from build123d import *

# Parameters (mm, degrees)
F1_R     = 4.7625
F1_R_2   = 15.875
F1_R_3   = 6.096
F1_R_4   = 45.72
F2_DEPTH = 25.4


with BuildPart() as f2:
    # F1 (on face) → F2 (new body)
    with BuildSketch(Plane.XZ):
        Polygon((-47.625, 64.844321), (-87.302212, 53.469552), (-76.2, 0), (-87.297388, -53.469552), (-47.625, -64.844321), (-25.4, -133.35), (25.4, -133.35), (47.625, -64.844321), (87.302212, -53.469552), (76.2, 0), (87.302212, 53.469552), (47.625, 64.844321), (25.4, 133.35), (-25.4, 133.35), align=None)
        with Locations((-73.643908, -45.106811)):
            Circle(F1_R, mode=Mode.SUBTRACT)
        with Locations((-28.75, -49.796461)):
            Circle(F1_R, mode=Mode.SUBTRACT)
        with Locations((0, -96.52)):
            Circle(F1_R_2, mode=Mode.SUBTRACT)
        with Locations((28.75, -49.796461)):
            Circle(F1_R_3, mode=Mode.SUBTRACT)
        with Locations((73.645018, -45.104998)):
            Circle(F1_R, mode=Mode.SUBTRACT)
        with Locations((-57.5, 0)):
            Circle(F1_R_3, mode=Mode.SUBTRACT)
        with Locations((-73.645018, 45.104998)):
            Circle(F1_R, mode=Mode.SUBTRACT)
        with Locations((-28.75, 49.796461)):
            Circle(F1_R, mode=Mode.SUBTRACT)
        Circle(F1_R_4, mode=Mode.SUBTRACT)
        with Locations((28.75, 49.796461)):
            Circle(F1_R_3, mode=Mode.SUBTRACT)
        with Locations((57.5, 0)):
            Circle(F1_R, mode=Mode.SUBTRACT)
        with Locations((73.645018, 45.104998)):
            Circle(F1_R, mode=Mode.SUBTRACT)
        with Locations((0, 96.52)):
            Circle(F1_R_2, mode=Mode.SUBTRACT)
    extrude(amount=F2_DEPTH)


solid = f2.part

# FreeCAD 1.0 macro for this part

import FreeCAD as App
import Part
import Sketcher
Q = App.Units.Quantity


def add_polygon(sketch, points):
    """Adds a closed chain of lines whose ends are joined by coincident constraints."""
    first, n = sketch.GeometryCount, len(points)
    for a, b in zip(points, points[1:] + points[:1]):
        sketch.addGeometry(Part.LineSegment(App.Vector(*a, 0), App.Vector(*b, 0)), False)
    for i in range(n):
        sketch.addConstraint(Sketcher.Constraint("Coincident", first + i, 2, first + (i + 1) % n, 1))

doc = App.newDocument("Part")
body = doc.addObject("PartDesign::Body", "Body")

sketch1 = body.newObject("Sketcher::SketchObject", "Sketch")
sketch1.AttachmentSupport = (doc.getObject("XZ_Plane"), [""])
sketch1.MapMode = "FlatFace"
add_polygon(sketch1, [(-47.6, 64.8), (-87.3, 53.5), (-76.2, 0), (-87.3, -53.5), (-47.6, -64.8), (-25.4, -133.3), (25.4, -133.3), (47.6, -64.8), (87.3, -53.5), (76.2, 0), (87.3, 53.5), (47.6, 64.8), (25.4, 133.3), (-25.4, 133.3)])
sketch1.addGeometry(Part.Circle(App.Vector(-73.6, -45.1, 0), App.Vector(0, 0, 1), 4.8), False)
sketch1.addGeometry(Part.Circle(App.Vector(-57.5, 0, 0), App.Vector(0, 0, 1), 6.1), False)
sketch1.addGeometry(Part.Circle(App.Vector(-28.8, -49.8, 0), App.Vector(0, 0, 1), 4.8), False)
sketch1.addGeometry(Part.Circle(App.Vector(0, 0, 0), App.Vector(0, 0, 1), 45.7), False)
sketch1.addGeometry(Part.Circle(App.Vector(0, -96.5, 0), App.Vector(0, 0, 1), 15.9), False)
sketch1.addGeometry(Part.Circle(App.Vector(28.8, -49.8, 0), App.Vector(0, 0, 1), 6.1), False)
sketch1.addGeometry(Part.Circle(App.Vector(73.6, -45.1, 0), App.Vector(0, 0, 1), 4.8), False)
sketch1.addGeometry(Part.Circle(App.Vector(57.5, 0, 0), App.Vector(0, 0, 1), 4.8), False)
sketch1.addGeometry(Part.Circle(App.Vector(-73.6, 45.1, 0), App.Vector(0, 0, 1), 4.8), False)
sketch1.addGeometry(Part.Circle(App.Vector(-28.8, 49.8, 0), App.Vector(0, 0, 1), 4.8), False)
sketch1.addGeometry(Part.Circle(App.Vector(28.8, 49.8, 0), App.Vector(0, 0, 1), 6.1), False)
sketch1.addGeometry(Part.Circle(App.Vector(73.6, 45.1, 0), App.Vector(0, 0, 1), 4.8), False)
sketch1.addGeometry(Part.Circle(App.Vector(0, 96.5, 0), App.Vector(0, 0, 1), 15.9), False)
sketch1.addConstraint([
    Sketcher.Constraint("Horizontal", 5),
    Sketcher.Constraint("Horizontal", 12),
    Sketcher.Constraint("Coincident", 17, 3, -1, 1),
    Sketcher.Constraint("Equal", 14, 16),
    Sketcher.Constraint("Equal", 15, 19),
    Sketcher.Constraint("Equal", 16, 20),
    Sketcher.Constraint("Equal", 20, 21),
    Sketcher.Constraint("Equal", 21, 22),
    Sketcher.Constraint("Equal", 22, 23),
    Sketcher.Constraint("Equal", 19, 24),
    Sketcher.Constraint("Equal", 23, 25),
    Sketcher.Constraint("Equal", 18, 26),
    Sketcher.Constraint("Symmetric", 15, 3, 21, 3, -1, 1),
    Sketcher.Constraint("Symmetric", 20, 3, 22, 3, -1, 1),
    Sketcher.Constraint("Symmetric", 19, 3, 23, 3, -1, 1),
    Sketcher.Constraint("Symmetric", 16, 3, 24, 3, -1, 1),
    Sketcher.Constraint("Symmetric", 18, 3, 26, 3, -1, 1),
    Sketcher.Constraint("Symmetric", 0, 2, 7, 2, -1, 1),
    Sketcher.Constraint("Symmetric", 1, 2, 8, 2, -1, 1),
    Sketcher.Constraint("Symmetric", 3, 2, 10, 2, -1, 1),
    Sketcher.Constraint("Symmetric", 4, 2, 11, 2, -1, 1),
    Sketcher.Constraint("Symmetric", 6, 2, 13, 2, -1, 1),
    Sketcher.Constraint("Symmetric", 16, 3, 19, 3, -2),
    Sketcher.Constraint("Symmetric", 22, 3, 25, 3, -2),
    Sketcher.Constraint("Symmetric", 3, 2, 6, 2, -2),
    Sketcher.Constraint("Symmetric", 0, 2, 9, 2, -2),
    Sketcher.Constraint("PointOnObject", 15, 3, -1),
    Sketcher.Constraint("PointOnObject", 18, 3, -2),
    Sketcher.Constraint("PointOnObject", 1, 2, -1),
    Sketcher.Constraint("Parallel", 6, 13),
    Sketcher.Constraint("Horizontal", 2, 2, 7, 2),
    Sketcher.Constraint("Vertical", 5, 2, 11, 2),
    Sketcher.Constraint("Diameter", 17, Q("3.6 in")),
    Sketcher.Constraint("Diameter", 15, Q("0.48 in")),
    Sketcher.Constraint("Diameter", 18, Q("1.25 in")),
    Sketcher.Constraint("DistanceX", 5, 1, 5, 2, Q("2 in")),
    Sketcher.Constraint("Diameter", 14, Q("0.375 in")),
    Sketcher.Constraint("DistanceX", 1, 2, -1, 1, Q("3 in")),
    Sketcher.Constraint("DistanceY", 18, 3, -1, 1, Q("3.8 in")),
    Sketcher.Constraint("Distance", 1, Q("2.15 in")),
    Sketcher.Constraint("DistanceY", 4, 2, -1, 1, Q("5.25 in")),
    Sketcher.Constraint("Angle", 1, Q("-78.27 deg")),
    Sketcher.Constraint("DistanceX", 3, 2, -1, 1, Q("1.875 in")),
    Sketcher.Constraint("DistanceX", 16, 3, 20, 3, Q("4.0312999 in")),
    Sketcher.Constraint("DistanceX", 15, 3, -1, 1, Q("57.5 mm")),
    Sketcher.Constraint("DistanceX", 16, 3, -1, 1, Q("28.75 mm")),
    Sketcher.Constraint("DistanceY", 20, 3, -1, 1, Q("45.104998 mm")),
    Sketcher.Constraint("Distance", 2, Q("54.60902 mm")),
    Sketcher.Constraint("Distance", 3, Q("41.270858 mm")),
    Sketcher.Constraint("DistanceY", 14, 3, -1, 1, Q("45.106811 mm")),
    Sketcher.Constraint("DistanceY", 16, 3, -1, 1, Q("49.796461 mm")),
    Sketcher.Constraint("DistanceX", 22, 3, 14, 3, Q("0.00111 mm")),
])
pad1 = body.newObject("PartDesign::Pad", "Pad")
pad1.Profile = sketch1
pad1.Length = Q("1 in")

doc.recompute()
